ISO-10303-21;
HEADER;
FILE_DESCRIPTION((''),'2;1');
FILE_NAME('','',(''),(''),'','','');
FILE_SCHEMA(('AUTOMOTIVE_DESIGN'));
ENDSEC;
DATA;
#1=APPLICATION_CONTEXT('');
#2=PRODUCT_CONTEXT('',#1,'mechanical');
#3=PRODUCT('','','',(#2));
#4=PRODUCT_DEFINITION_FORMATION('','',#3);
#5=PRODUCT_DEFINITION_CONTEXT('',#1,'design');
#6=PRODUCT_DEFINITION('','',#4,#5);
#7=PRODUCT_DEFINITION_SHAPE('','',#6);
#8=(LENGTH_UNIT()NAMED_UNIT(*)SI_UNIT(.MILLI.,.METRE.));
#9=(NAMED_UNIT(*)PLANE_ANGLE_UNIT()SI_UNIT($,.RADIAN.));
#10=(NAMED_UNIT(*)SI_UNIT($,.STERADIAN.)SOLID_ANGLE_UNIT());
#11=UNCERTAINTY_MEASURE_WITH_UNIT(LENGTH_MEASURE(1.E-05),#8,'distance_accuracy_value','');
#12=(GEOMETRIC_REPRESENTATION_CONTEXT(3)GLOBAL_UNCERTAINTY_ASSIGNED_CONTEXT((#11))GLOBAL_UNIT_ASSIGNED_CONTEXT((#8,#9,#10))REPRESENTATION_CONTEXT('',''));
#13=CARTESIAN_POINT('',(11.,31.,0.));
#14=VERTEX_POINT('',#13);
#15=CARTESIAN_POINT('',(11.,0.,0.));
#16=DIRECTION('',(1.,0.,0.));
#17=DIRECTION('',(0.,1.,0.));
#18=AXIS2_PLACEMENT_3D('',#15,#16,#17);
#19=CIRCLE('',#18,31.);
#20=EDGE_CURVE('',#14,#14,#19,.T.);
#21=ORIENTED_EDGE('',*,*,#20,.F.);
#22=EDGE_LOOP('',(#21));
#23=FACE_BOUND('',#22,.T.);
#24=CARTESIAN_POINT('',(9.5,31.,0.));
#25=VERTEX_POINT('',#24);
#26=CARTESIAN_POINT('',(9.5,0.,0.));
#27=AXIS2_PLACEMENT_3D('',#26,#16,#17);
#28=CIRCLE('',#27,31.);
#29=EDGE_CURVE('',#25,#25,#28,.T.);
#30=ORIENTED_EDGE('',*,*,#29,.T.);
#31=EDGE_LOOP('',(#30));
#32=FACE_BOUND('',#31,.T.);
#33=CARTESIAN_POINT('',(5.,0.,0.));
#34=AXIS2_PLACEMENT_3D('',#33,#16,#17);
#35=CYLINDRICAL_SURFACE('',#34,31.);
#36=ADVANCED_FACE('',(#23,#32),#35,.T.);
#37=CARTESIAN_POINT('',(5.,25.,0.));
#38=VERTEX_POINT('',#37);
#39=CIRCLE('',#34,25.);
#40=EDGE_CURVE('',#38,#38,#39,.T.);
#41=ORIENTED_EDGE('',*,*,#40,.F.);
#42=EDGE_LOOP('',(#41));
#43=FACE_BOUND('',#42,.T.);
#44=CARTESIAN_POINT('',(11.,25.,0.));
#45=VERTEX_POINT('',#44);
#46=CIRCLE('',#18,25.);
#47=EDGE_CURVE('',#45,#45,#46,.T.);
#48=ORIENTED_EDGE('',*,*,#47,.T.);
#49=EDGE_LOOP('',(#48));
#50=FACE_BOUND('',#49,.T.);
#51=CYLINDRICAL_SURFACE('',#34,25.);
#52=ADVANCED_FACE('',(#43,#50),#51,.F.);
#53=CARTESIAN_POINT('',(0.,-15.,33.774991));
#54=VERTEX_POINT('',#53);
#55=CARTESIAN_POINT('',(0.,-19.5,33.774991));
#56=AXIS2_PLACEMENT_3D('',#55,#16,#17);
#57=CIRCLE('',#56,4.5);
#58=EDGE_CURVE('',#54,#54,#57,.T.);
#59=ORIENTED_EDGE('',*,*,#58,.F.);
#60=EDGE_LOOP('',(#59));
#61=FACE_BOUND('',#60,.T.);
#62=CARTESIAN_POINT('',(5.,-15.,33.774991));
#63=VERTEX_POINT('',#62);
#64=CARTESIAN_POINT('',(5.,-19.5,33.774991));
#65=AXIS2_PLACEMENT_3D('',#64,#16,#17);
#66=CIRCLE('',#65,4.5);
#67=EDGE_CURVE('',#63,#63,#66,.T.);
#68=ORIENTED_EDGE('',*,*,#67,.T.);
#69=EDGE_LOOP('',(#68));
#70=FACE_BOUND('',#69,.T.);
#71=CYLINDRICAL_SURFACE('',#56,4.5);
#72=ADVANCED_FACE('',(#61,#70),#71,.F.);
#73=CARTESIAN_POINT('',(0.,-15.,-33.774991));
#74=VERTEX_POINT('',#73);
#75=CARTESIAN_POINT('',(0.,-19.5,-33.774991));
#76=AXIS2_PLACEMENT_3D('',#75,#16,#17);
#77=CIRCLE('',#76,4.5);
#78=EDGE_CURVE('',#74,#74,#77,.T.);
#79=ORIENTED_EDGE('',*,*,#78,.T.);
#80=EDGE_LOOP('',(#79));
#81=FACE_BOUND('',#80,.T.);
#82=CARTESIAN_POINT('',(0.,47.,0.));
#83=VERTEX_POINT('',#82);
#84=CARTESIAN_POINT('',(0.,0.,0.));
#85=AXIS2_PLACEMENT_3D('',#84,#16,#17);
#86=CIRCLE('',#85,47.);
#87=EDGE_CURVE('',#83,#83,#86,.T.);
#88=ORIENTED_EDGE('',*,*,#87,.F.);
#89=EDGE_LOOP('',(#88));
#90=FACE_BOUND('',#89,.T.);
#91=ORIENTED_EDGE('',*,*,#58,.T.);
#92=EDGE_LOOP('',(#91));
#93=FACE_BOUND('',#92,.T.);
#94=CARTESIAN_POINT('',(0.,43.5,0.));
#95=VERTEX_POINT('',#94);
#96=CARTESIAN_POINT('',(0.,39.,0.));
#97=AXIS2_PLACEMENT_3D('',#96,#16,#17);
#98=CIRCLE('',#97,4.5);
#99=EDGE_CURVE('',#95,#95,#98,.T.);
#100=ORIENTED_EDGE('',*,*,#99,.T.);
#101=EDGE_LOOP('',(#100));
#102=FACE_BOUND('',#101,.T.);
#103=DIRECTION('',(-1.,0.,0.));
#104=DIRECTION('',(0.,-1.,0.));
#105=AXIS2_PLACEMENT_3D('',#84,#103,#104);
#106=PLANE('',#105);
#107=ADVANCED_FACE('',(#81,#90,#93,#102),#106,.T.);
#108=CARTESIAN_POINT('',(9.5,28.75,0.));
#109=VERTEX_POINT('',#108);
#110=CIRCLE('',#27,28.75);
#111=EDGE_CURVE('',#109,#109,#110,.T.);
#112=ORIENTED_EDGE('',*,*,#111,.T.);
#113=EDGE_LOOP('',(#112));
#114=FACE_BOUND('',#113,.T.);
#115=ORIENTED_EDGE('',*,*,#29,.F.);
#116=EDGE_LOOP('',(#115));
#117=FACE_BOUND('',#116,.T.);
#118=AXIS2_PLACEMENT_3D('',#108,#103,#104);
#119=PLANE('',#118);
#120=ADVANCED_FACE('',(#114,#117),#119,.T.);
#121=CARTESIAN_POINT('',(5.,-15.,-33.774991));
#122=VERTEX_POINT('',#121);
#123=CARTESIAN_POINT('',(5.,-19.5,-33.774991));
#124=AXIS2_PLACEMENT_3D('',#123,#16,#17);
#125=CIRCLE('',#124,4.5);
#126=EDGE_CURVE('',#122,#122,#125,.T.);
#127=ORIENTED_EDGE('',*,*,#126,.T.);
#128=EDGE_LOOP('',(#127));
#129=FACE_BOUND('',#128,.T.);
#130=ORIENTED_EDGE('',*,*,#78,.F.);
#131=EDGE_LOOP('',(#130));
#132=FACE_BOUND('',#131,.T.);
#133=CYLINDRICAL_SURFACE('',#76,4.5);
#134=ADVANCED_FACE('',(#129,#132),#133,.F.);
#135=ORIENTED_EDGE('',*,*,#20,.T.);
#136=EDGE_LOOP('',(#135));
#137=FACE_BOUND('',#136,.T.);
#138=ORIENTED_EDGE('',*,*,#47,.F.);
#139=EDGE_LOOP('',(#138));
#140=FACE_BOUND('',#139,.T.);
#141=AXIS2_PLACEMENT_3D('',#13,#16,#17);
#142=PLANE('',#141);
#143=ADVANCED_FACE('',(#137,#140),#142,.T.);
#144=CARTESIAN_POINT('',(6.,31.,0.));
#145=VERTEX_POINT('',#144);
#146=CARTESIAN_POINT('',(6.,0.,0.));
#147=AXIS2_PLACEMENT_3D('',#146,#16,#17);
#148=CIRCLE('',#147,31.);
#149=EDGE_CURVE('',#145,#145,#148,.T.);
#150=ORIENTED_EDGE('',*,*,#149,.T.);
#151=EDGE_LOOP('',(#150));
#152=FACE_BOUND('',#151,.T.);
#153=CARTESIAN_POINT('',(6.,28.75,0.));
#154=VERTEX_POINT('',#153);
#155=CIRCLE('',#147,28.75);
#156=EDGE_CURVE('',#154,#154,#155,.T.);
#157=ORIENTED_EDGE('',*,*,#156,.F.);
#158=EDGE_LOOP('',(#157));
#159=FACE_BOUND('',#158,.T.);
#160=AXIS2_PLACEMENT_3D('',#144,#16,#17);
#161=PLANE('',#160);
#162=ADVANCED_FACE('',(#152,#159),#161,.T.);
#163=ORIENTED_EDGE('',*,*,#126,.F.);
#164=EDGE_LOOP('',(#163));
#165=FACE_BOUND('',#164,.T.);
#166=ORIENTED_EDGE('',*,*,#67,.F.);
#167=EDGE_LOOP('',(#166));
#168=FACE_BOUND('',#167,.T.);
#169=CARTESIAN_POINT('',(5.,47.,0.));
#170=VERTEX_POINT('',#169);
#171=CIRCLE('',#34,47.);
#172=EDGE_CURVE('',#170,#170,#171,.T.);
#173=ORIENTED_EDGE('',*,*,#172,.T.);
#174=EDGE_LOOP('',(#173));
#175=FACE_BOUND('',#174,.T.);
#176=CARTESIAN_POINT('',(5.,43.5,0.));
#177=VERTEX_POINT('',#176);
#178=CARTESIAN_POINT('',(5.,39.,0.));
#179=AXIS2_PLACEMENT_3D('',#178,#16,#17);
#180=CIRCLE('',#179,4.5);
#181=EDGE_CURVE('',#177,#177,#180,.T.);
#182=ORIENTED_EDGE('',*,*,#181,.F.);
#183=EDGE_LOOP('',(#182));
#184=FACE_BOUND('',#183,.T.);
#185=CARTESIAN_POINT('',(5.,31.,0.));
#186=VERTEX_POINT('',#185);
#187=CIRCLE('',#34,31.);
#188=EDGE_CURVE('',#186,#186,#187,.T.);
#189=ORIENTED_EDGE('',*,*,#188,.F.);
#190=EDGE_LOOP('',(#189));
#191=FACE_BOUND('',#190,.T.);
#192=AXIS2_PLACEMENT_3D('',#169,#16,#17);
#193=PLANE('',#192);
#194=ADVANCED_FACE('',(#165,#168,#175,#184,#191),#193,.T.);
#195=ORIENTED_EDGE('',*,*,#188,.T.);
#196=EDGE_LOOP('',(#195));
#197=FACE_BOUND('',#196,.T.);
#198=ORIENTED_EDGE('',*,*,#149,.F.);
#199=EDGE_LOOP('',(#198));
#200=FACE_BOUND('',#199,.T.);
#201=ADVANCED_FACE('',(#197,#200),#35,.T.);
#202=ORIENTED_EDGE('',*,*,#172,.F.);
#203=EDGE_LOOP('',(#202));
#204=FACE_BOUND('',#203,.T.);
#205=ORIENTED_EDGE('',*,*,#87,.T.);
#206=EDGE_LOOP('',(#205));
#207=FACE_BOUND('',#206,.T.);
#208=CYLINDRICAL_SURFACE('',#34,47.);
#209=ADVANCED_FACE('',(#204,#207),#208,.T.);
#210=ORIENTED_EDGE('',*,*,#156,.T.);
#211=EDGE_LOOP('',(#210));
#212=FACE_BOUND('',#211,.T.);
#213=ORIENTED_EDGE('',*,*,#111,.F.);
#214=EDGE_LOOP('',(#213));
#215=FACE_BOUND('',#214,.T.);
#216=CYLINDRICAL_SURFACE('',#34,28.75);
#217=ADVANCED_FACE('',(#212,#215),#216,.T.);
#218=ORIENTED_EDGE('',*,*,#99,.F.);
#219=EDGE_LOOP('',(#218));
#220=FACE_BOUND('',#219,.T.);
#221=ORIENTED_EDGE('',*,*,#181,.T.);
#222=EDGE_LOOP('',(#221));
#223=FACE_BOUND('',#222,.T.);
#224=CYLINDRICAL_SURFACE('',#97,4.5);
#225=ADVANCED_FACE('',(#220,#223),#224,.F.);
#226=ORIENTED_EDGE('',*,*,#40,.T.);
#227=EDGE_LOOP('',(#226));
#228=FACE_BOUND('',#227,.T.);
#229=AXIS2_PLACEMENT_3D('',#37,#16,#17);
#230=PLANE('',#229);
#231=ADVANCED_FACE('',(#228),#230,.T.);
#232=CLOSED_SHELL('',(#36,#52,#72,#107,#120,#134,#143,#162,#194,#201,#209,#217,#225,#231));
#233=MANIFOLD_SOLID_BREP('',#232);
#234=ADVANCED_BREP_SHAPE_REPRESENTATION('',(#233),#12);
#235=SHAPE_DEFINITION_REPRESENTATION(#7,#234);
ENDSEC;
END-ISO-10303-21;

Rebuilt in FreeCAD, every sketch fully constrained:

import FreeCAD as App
import Part
import Sketcher
from FreeCAD import Vector

doc = App.newDocument("Part")
params = doc.addObject("Spreadsheet::Sheet", "Params")
for row, (alias, value) in enumerate([
    ("sketch1_width", "5 mm"),
    ("sketch1_width2", "6 mm"),
    ("sketch1_width3", "1 mm"),
    ("sketch1_height", "47 mm"),
    ("sketch1_height2", "25 mm"),
    ("revolution_angle", "360 deg"),
    ("sketch2_diameter", "9 mm"),
], start=1):
    params.set(f"A{row}", alias)
    params.set(f"B{row}", "=" + value)
    params.setAlias(f"B{row}", alias)

body = doc.addObject("PartDesign::Body", "Body")

sketch1 = doc.addObject("Sketcher::SketchObject", "Sketch")
body.addObject(sketch1)
sketch1.AttachmentSupport = (doc.XY_Plane, [""])
sketch1.MapMode = "FlatFace"
sketch1.addGeometry(Part.LineSegment(Vector(0, 47, 0), Vector(0, 0, 0)), False)
sketch1.addGeometry(Part.LineSegment(Vector(0, 0, 0), Vector(5, 0, 0)), False)
sketch1.addGeometry(Part.LineSegment(Vector(5, 0, 0), Vector(5, 25, 0)), False)
sketch1.addGeometry(Part.LineSegment(Vector(5, 25, 0), Vector(11, 25, 0)), False)
sketch1.addGeometry(Part.LineSegment(Vector(11, 25, 0), Vector(11, 31, 0)), False)
sketch1.addGeometry(Part.LineSegment(Vector(11, 31, 0), Vector(9.5, 31, 0)), False)
sketch1.addGeometry(Part.LineSegment(Vector(9.5, 31, 0), Vector(9.5, 28.75, 0)), False)
sketch1.addGeometry(Part.LineSegment(Vector(9.5, 28.75, 0), Vector(6, 28.75, 0)), False)
sketch1.addGeometry(Part.LineSegment(Vector(6, 28.75, 0), Vector(6, 31, 0)), False)
sketch1.addGeometry(Part.LineSegment(Vector(6, 31, 0), Vector(5, 31, 0)), False)
sketch1.addGeometry(Part.LineSegment(Vector(5, 31, 0), Vector(5, 47, 0)), False)
sketch1.addGeometry(Part.LineSegment(Vector(5, 47, 0), Vector(0, 47, 0)), False)
sketch1.addConstraint(Sketcher.Constraint("Coincident", 0, 2, 1, 1))
sketch1.addConstraint(Sketcher.Constraint("Coincident", 1, 2, 2, 1))
sketch1.addConstraint(Sketcher.Constraint("Coincident", 2, 2, 3, 1))
sketch1.addConstraint(Sketcher.Constraint("Coincident", 3, 2, 4, 1))
sketch1.addConstraint(Sketcher.Constraint("Coincident", 4, 2, 5, 1))
sketch1.addConstraint(Sketcher.Constraint("Coincident", 5, 2, 6, 1))
sketch1.addConstraint(Sketcher.Constraint("Coincident", 6, 2, 7, 1))
sketch1.addConstraint(Sketcher.Constraint("Coincident", 7, 2, 8, 1))
sketch1.addConstraint(Sketcher.Constraint("Coincident", 8, 2, 9, 1))
sketch1.addConstraint(Sketcher.Constraint("Coincident", 9, 2, 10, 1))
sketch1.addConstraint(Sketcher.Constraint("Coincident", 10, 2, 11, 1))
sketch1.addConstraint(Sketcher.Constraint("Coincident", 11, 2, 0, 1))
sketch1.addConstraint(Sketcher.Constraint("Vertical", 0))
sketch1.addConstraint(Sketcher.Constraint("Horizontal", 1))
sketch1.addConstraint(Sketcher.Constraint("Vertical", 2))
sketch1.addConstraint(Sketcher.Constraint("Horizontal", 3))
sketch1.addConstraint(Sketcher.Constraint("Vertical", 4))
sketch1.addConstraint(Sketcher.Constraint("Horizontal", 5))
sketch1.addConstraint(Sketcher.Constraint("Vertical", 6))
sketch1.addConstraint(Sketcher.Constraint("Horizontal", 7))
sketch1.addConstraint(Sketcher.Constraint("Vertical", 8))
sketch1.addConstraint(Sketcher.Constraint("Horizontal", 9))
sketch1.addConstraint(Sketcher.Constraint("Vertical", 10))
sketch1.addConstraint(Sketcher.Constraint("Horizontal", 11))
sketch1.addConstraint(Sketcher.Constraint("Coincident", 0, 2, -1, 1))
sketch1.addConstraint(Sketcher.Constraint("Horizontal", 5, 2, 8, 2))
sketch1.addConstraint(Sketcher.Constraint("Vertical", 2, 2, 9, 2))
sketch1.addConstraint(Sketcher.Constraint("Equal", 3, 4))
sketch1.addConstraint(Sketcher.Constraint("DistanceX", 1, 1, 1, 2, 5.0))
sketch1.addConstraint(Sketcher.Constraint("DistanceX", 3, 1, 3, 2, 6.0))
sketch1.addConstraint(Sketcher.Constraint("DistanceX", 9, 2, 9, 1, 1.0))
sketch1.addConstraint(Sketcher.Constraint("DistanceY", 0, 2, 0, 1, 47.0))
sketch1.addConstraint(Sketcher.Constraint("DistanceY", 2, 1, 2, 2, 25.0))
sketch1.addConstraint(Sketcher.Constraint("DistanceX", 5, 2, 5, 1, 1.5))
sketch1.addConstraint(Sketcher.Constraint("DistanceY", 6, 2, 6, 1, 2.25))
sketch1.setExpression("Constraints[28]", "Params.sketch1_width")
sketch1.setExpression("Constraints[29]", "Params.sketch1_width2")
sketch1.setExpression("Constraints[30]", "Params.sketch1_width3")
sketch1.setExpression("Constraints[31]", "Params.sketch1_height")
sketch1.setExpression("Constraints[32]", "Params.sketch1_height2")
revolution = doc.addObject("PartDesign::Revolution", "Revolution")
body.addObject(revolution)
revolution.Profile = sketch1
revolution.ReferenceAxis = (sketch1, ["H_Axis"])
revolution.setExpression("Angle", "Params.revolution_angle")

sketch2 = doc.addObject("Sketcher::SketchObject", "Sketch001")
body.addObject(sketch2)
sketch2.AttachmentSupport = (doc.YZ_Plane, [""])
sketch2.MapMode = "FlatFace"
sketch2.AttachmentOffset = App.Placement(Vector(0, 0, 5), App.Rotation())
sketch2.addGeometry(Part.Circle(Vector(39, 0, 0), Vector(0, 0, 1), 4.5), False)
sketch2.addGeometry(Part.Circle(Vector(-19.5, -33.774991, 0), Vector(0, 0, 1), 4.5), False)
sketch2.addGeometry(Part.Circle(Vector(-19.5, 33.774991, 0), Vector(0, 0, 1), 4.5), False)
sketch2.addConstraint(Sketcher.Constraint("Equal", 0, 1))
sketch2.addConstraint(Sketcher.Constraint("Equal", 1, 2))
sketch2.addConstraint(Sketcher.Constraint("Symmetric", 1, 3, 2, 3, -1))
sketch2.addConstraint(Sketcher.Constraint("PointOnObject", 0, 3, -1))
sketch2.addConstraint(Sketcher.Constraint("Diameter", 0, 9.0))
sketch2.addConstraint(Sketcher.Constraint("DistanceX", -1, 1, 0, 3, 39.0))
sketch2.addConstraint(Sketcher.Constraint("DistanceX", 1, 3, -1, 1, 19.5))
sketch2.addConstraint(Sketcher.Constraint("DistanceY", 1, 3, -1, 1, 33.774991))
sketch2.setExpression("Constraints[4]", "Params.sketch2_diameter")
pocket1 = doc.addObject("PartDesign::Pocket", "Pocket")
body.addObject(pocket1)
pocket1.Profile = sketch2
pocket1.Type = "ThroughAll"

doc.recompute()
